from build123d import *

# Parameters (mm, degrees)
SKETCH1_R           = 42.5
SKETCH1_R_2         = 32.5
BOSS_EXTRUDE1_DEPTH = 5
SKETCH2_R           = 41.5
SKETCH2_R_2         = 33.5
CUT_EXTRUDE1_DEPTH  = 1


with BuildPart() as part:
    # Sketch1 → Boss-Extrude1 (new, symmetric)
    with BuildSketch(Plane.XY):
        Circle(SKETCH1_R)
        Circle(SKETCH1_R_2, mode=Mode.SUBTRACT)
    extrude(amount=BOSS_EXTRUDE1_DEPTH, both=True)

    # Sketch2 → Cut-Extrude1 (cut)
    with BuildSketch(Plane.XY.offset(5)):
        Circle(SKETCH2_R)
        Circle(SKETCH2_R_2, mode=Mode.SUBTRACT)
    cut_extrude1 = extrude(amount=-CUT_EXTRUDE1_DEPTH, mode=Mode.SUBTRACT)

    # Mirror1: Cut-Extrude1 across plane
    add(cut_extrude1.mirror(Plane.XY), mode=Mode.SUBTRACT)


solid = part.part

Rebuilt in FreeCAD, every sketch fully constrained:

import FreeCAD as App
import Part
import Sketcher

doc = App.newDocument("Part")
body = doc.addObject("PartDesign::Body", "Body")

sketch1 = body.newObject("Sketcher::SketchObject", "Sketch")
sketch1.AttachmentSupport = (doc.getObject("XY_Plane"), [""])
sketch1.MapMode = "FlatFace"
sketch1.addGeometry([
    Part.Circle(App.Vector(0, 0, 0), App.Vector(0, 0, 1), 42),
    Part.Circle(App.Vector(0, 0, 0), App.Vector(0, 0, 1), 32),
], False)
sketch1.addConstraint([
    Sketcher.Constraint("Coincident", 0, 3, -1, 1),
    Sketcher.Constraint("Coincident", 1, 3, -1, 1),
    Sketcher.Constraint("Diameter", 0, 85.0),
    Sketcher.Constraint("Diameter", 1, 65.0),
])
pad1 = body.newObject("PartDesign::Pad", "Pad")
pad1.Profile = sketch1
pad1.Length = 10
pad1.Midplane = True

sketch2 = body.newObject("Sketcher::SketchObject", "Sketch001")
sketch2.AttachmentSupport = (doc.getObject("XY_Plane"), [""])
sketch2.MapMode = "FlatFace"
sketch2.AttachmentOffset = App.Placement(App.Vector(0, 0, 5), App.Rotation())
sketch2.addGeometry([
    Part.Circle(App.Vector(0, 0, 0), App.Vector(0, 0, 1), 42),
    Part.Circle(App.Vector(0, 0, 0), App.Vector(0, 0, 1), 34),
], False)
sketch2.addConstraint([
    Sketcher.Constraint("Coincident", 0, 3, -1, 1),
    Sketcher.Constraint("Coincident", 1, 3, -1, 1),
    Sketcher.Constraint("Diameter", 0, 83.0),
    Sketcher.Constraint("Diameter", 1, 67.0),
])
pocket1 = body.newObject("PartDesign::Pocket", "Pocket")
pocket1.Profile = sketch2
pocket1.Length = 1
doc.recompute()

mirrored = body.newObject("PartDesign::Mirrored", "Mirrored")
mirrored.Originals = [pocket1]
mirrored.MirrorPlane = (doc.getObject("XY_Plane"), [""])
body.Tip = mirrored

doc.recompute()
